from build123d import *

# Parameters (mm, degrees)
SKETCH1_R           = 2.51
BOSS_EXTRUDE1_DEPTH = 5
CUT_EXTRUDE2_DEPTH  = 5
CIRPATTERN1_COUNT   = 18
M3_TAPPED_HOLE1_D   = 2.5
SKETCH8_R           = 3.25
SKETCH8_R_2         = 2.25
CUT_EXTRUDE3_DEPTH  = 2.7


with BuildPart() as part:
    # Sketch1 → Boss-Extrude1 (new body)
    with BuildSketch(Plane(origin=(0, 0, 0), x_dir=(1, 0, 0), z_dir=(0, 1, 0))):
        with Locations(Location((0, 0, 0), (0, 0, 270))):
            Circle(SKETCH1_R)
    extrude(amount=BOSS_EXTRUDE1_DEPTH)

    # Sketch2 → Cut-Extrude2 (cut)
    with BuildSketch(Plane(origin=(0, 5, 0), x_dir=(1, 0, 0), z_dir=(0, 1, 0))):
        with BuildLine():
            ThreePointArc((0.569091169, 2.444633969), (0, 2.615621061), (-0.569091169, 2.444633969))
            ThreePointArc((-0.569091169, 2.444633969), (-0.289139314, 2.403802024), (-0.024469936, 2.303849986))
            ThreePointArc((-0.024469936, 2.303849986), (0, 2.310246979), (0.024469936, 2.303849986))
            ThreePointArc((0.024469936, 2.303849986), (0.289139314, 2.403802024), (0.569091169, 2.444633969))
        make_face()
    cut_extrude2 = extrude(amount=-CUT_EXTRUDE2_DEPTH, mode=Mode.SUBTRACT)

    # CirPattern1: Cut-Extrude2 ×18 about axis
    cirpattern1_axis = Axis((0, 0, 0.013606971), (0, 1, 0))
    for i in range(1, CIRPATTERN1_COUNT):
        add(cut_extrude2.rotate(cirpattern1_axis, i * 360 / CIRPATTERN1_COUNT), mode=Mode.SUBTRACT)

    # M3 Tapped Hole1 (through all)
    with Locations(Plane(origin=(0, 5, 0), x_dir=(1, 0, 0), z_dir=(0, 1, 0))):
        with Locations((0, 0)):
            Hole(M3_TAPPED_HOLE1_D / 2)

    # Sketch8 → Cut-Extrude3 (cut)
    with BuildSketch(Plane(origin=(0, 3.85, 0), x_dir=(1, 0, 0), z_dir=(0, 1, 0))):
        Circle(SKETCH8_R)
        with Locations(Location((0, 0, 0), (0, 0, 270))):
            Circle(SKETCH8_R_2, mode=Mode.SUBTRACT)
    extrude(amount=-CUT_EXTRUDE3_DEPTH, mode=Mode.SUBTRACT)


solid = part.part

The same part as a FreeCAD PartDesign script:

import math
import FreeCAD as App
import Part
import Sketcher

V = App.Vector
Q = App.Units.Quantity

doc = App.newDocument("Part")
params = doc.addObject("Spreadsheet::Sheet", "Params")
for row, (alias, value) in enumerate([
    ("sketch1_diameter", "5.02 mm"),
    ("pad1_length", "5 mm"),
    ("sketch2_radius", "0.05 mm"),
    ("pocket1_length", "5 mm"),
    ("sketch3_diameter", "2.5 mm"),
    ("hole_diameter", "2.5 mm"),
    ("sketch4_diameter", "6.5 mm"),
    ("sketch4_diameter2", "4.5 mm"),
    ("pocket2_length", "2.7 mm"),
], start=1):
    params.set(f"A{row}", alias)
    params.set(f"B{row}", "=" + value)
    params.setAlias(f"B{row}", alias)

body = doc.addObject("PartDesign::Body", "Body")

# Sketch on XZ plane
sketch1 = body.newObject("Sketcher::SketchObject", "Sketch")
sketch1.AttachmentSupport = (doc.getObject("XZ_Plane"), [""])
sketch1.MapMode = "FlatFace"
sketch1.addGeometry(Part.Circle(V(0, 0, 0), V(0, 0, 1), 2.5), False)
sketch1.addConstraint(Sketcher.Constraint("Coincident", 0, 3, -1, 1))
sketch1.addConstraint(Sketcher.Constraint("Diameter", 0, Q("5.02 mm")))
sketch1.setExpression("Constraints[1]", "Params.sketch1_diameter")
pad1 = body.newObject("PartDesign::Pad", "Pad")
pad1.Profile = sketch1
pad1.setExpression("Length", "Params.pad1_length")
pad1.Reversed = True

# Sketch on XZ plane
sketch2 = body.newObject("Sketcher::SketchObject", "Sketch001")
sketch2.AttachmentSupport = (doc.getObject("XZ_Plane"), [""])
sketch2.MapMode = "FlatFace"
sketch2.AttachmentOffset = App.Placement(V(0, 0, -5), App.Rotation())
sketch2.addGeometry(Part.ArcOfCircle(Part.Circle(V(0, -1.583, 0), V(0, 0, 1), 1.033), math.radians(-123), math.radians(-57)), False)
sketch2.addGeometry(Part.ArcOfCircle(Part.Circle(V(-0.617, -1.135, 0), V(0, 0, 1), 1.311), math.radians(-88), math.radians(-63)), False)
sketch2.addGeometry(Part.ArcOfCircle(Part.Circle(V(0, -2.26, 0), V(0, 0, 1), 0.05), math.radians(-119), math.radians(-61)), False)
sketch2.addGeometry(Part.ArcOfCircle(Part.Circle(V(0.617, -1.135, 0), V(0, 0, 1), 1.311), math.radians(-117), math.radians(-92)), False)
sketch2.addConstraint(Sketcher.Constraint("Coincident", 0, 1, 1, 1))
sketch2.addConstraint(Sketcher.Constraint("Coincident", 1, 2, 2, 1))
sketch2.addConstraint(Sketcher.Constraint("Coincident", 2, 2, 3, 1))
sketch2.addConstraint(Sketcher.Constraint("Coincident", 3, 2, 0, 2))
sketch2.addConstraint(Sketcher.Constraint("Equal", 1, 3))
sketch2.addConstraint(Sketcher.Constraint("Symmetric", 1, 3, 3, 3, -2))
sketch2.addConstraint(Sketcher.Constraint("PointOnObject", 0, 3, -2))
sketch2.addConstraint(Sketcher.Constraint("PointOnObject", 2, 3, -2))
sketch2.addConstraint(Sketcher.Constraint("Radius", 2, Q("0.05 mm")))
sketch2.addConstraint(Sketcher.Constraint("Radius", 0, Q("1.032538 mm")))
sketch2.addConstraint(Sketcher.Constraint("Radius", 1, Q("1.310773 mm")))
sketch2.addConstraint(Sketcher.Constraint("DistanceX", 1, 3, 0, 1, Q("0.048098 mm")))
sketch2.addConstraint(Sketcher.Constraint("DistanceX", 1, 3, -1, 1, Q("0.61719 mm")))
sketch2.addConstraint(Sketcher.Constraint("DistanceX", 1, 2, -1, 1, Q("0.02447 mm")))
sketch2.addConstraint(Sketcher.Constraint("DistanceY", 1, 2, -1, 1, Q("2.30385 mm")))
sketch2.setExpression("Constraints[8]", "Params.sketch2_radius")
pocket1 = body.newObject("PartDesign::Pocket", "Pocket")
pocket1.Profile = sketch2
pocket1.setExpression("Length", "Params.pocket1_length")
pocket1.Reversed = True
doc.recompute()

datumline = body.newObject("PartDesign::Line", "DatumLine")
datumline.Placement = App.Placement(V(0, 0, 0.013607), App.Rotation(V(0, 0, 1), V(0, 1, 0)))
polarpattern = body.newObject("PartDesign::PolarPattern", "PolarPattern")
polarpattern.Originals = [pocket1]
polarpattern.Axis = (datumline, [""])
polarpattern.Angle = 360
polarpattern.Occurrences = 18
body.Tip = polarpattern

# Sketch on XZ plane
sketch3 = body.newObject("Sketcher::SketchObject", "Sketch002")
sketch3.AttachmentSupport = (doc.getObject("XZ_Plane"), [""])
sketch3.MapMode = "FlatFace"
sketch3.AttachmentOffset = App.Placement(V(0, 0, -5), App.Rotation())
sketch3.addGeometry(Part.Circle(V(0, 0, 0), V(0, 0, 1), 1.2), False)
sketch3.addConstraint(Sketcher.Constraint("Coincident", 0, 3, -1, 1))
sketch3.addConstraint(Sketcher.Constraint("Diameter", 0, Q("2.5 mm")))
sketch3.setExpression("Constraints[1]", "Params.sketch3_diameter")
doc.recompute()
hole = body.newObject("PartDesign::Hole", "Hole")
hole.Profile = sketch3
hole.ThreadType = "None"
hole.setExpression("Diameter", "Params.hole_diameter")
hole.DepthType = "ThroughAll"
hole.Reversed = True

# Sketch on XZ plane
sketch4 = body.newObject("Sketcher::SketchObject", "Sketch003")
sketch4.AttachmentSupport = (doc.getObject("XZ_Plane"), [""])
sketch4.MapMode = "FlatFace"
sketch4.AttachmentOffset = App.Placement(V(0, 0, -3.85), App.Rotation())
sketch4.addGeometry(Part.Circle(V(0, 0, 0), V(0, 0, 1), 3.2), False)
sketch4.addGeometry(Part.Circle(V(0, 0, 0), V(0, 0, 1), 2.2), False)
sketch4.addConstraint(Sketcher.Constraint("Coincident", 0, 3, -1, 1))
sketch4.addConstraint(Sketcher.Constraint("Coincident", 1, 3, -1, 1))
sketch4.addConstraint(Sketcher.Constraint("Diameter", 0, Q("6.5 mm")))
sketch4.addConstraint(Sketcher.Constraint("Diameter", 1, Q("4.5 mm")))
sketch4.setExpression("Constraints[2]", "Params.sketch4_diameter")
sketch4.setExpression("Constraints[3]", "Params.sketch4_diameter2")
pocket2 = body.newObject("PartDesign::Pocket", "Pocket001")
pocket2.Profile = sketch4
pocket2.setExpression("Length", "Params.pocket2_length")
pocket2.Reversed = True

doc.recompute()
